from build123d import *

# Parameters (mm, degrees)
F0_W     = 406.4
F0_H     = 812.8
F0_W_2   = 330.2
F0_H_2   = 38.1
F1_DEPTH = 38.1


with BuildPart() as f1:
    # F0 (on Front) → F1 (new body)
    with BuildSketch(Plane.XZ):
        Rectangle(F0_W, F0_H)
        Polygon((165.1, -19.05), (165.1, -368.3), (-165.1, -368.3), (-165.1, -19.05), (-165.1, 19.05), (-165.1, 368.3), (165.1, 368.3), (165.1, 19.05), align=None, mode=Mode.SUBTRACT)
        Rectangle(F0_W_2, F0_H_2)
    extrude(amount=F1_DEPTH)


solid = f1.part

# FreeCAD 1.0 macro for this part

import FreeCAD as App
import Part
import Sketcher

V = App.Vector
Q = App.Units.Quantity

doc = App.newDocument("Part")
body = doc.addObject("PartDesign::Body", "Body")

sketch1 = doc.addObject("Sketcher::SketchObject", "Sketch")
body.addObject(sketch1)
sketch1.AttachmentSupport = (doc.XZ_Plane, [""])
sketch1.MapMode = "FlatFace"
sketch1.addGeometry([
    Part.LineSegment(V(-203, 406, 0), V(-203, -406, 0)),
    Part.LineSegment(V(-203, -406, 0), V(203, -406, 0)),
    Part.LineSegment(V(203, -406, 0), V(203, 406, 0)),
    Part.LineSegment(V(203, 406, 0), V(-203, 406, 0)),
    Part.LineSegment(V(165, 368, 0), V(165, 19, 0)),
    Part.LineSegment(V(165, 19, 0), V(-165, 19, 0)),
    Part.LineSegment(V(-165, 19, 0), V(-165, 368, 0)),
    Part.LineSegment(V(-165, 368, 0), V(165, 368, 0)),
    Part.LineSegment(V(165, -19, 0), V(165, -368, 0)),
    Part.LineSegment(V(165, -368, 0), V(-165, -368, 0)),
    Part.LineSegment(V(-165, -368, 0), V(-165, -19, 0)),
    Part.LineSegment(V(-165, -19, 0), V(165, -19, 0)),
], False)
sketch1.addConstraint([
    Sketcher.Constraint("Coincident", 0, 2, 1, 1),
    Sketcher.Constraint("Coincident", 1, 2, 2, 1),
    Sketcher.Constraint("Coincident", 2, 2, 3, 1),
    Sketcher.Constraint("Coincident", 3, 2, 0, 1),
    Sketcher.Constraint("Coincident", 4, 2, 5, 1),
    Sketcher.Constraint("Coincident", 5, 2, 6, 1),
    Sketcher.Constraint("Coincident", 6, 2, 7, 1),
    Sketcher.Constraint("Coincident", 7, 2, 4, 1),
    Sketcher.Constraint("Coincident", 8, 2, 9, 1),
    Sketcher.Constraint("Coincident", 9, 2, 10, 1),
    Sketcher.Constraint("Coincident", 10, 2, 11, 1),
    Sketcher.Constraint("Coincident", 11, 2, 8, 1),
    Sketcher.Constraint("Vertical", 0),
    Sketcher.Constraint("Horizontal", 1),
    Sketcher.Constraint("Vertical", 2),
    Sketcher.Constraint("Horizontal", 3),
    Sketcher.Constraint("Vertical", 4),
    Sketcher.Constraint("Horizontal", 5),
    Sketcher.Constraint("Vertical", 6),
    Sketcher.Constraint("Horizontal", 7),
    Sketcher.Constraint("Vertical", 8),
    Sketcher.Constraint("Horizontal", 9),
    Sketcher.Constraint("Vertical", 10),
    Sketcher.Constraint("Horizontal", 11),
    Sketcher.Constraint("Symmetric", 0, 2, 2, 2, -1, 1),
    Sketcher.Constraint("Symmetric", 6, 2, 8, 2, -1, 1),
    Sketcher.Constraint("Symmetric", 4, 2, 10, 2, -1, 1),
    Sketcher.Constraint("Vertical", 7, 2, 8, 2),
    Sketcher.Constraint("DistanceX", 1, 1, 1, 2, Q("16 in")),
    Sketcher.Constraint("DistanceX", 5, 2, 5, 1, Q("13 in")),
    Sketcher.Constraint("DistanceY", 0, 2, 0, 1, Q("32 in")),
    Sketcher.Constraint("DistanceY", 8, 2, 7, 2, Q("29 in")),
    Sketcher.Constraint("DistanceY", 4, 2, 4, 1, Q("13.75 in")),
])
pad1 = doc.addObject("PartDesign::Pad", "Pad")
body.addObject(pad1)
pad1.Profile = sketch1
pad1.Length = Q("1.5 in")

doc.recompute()
